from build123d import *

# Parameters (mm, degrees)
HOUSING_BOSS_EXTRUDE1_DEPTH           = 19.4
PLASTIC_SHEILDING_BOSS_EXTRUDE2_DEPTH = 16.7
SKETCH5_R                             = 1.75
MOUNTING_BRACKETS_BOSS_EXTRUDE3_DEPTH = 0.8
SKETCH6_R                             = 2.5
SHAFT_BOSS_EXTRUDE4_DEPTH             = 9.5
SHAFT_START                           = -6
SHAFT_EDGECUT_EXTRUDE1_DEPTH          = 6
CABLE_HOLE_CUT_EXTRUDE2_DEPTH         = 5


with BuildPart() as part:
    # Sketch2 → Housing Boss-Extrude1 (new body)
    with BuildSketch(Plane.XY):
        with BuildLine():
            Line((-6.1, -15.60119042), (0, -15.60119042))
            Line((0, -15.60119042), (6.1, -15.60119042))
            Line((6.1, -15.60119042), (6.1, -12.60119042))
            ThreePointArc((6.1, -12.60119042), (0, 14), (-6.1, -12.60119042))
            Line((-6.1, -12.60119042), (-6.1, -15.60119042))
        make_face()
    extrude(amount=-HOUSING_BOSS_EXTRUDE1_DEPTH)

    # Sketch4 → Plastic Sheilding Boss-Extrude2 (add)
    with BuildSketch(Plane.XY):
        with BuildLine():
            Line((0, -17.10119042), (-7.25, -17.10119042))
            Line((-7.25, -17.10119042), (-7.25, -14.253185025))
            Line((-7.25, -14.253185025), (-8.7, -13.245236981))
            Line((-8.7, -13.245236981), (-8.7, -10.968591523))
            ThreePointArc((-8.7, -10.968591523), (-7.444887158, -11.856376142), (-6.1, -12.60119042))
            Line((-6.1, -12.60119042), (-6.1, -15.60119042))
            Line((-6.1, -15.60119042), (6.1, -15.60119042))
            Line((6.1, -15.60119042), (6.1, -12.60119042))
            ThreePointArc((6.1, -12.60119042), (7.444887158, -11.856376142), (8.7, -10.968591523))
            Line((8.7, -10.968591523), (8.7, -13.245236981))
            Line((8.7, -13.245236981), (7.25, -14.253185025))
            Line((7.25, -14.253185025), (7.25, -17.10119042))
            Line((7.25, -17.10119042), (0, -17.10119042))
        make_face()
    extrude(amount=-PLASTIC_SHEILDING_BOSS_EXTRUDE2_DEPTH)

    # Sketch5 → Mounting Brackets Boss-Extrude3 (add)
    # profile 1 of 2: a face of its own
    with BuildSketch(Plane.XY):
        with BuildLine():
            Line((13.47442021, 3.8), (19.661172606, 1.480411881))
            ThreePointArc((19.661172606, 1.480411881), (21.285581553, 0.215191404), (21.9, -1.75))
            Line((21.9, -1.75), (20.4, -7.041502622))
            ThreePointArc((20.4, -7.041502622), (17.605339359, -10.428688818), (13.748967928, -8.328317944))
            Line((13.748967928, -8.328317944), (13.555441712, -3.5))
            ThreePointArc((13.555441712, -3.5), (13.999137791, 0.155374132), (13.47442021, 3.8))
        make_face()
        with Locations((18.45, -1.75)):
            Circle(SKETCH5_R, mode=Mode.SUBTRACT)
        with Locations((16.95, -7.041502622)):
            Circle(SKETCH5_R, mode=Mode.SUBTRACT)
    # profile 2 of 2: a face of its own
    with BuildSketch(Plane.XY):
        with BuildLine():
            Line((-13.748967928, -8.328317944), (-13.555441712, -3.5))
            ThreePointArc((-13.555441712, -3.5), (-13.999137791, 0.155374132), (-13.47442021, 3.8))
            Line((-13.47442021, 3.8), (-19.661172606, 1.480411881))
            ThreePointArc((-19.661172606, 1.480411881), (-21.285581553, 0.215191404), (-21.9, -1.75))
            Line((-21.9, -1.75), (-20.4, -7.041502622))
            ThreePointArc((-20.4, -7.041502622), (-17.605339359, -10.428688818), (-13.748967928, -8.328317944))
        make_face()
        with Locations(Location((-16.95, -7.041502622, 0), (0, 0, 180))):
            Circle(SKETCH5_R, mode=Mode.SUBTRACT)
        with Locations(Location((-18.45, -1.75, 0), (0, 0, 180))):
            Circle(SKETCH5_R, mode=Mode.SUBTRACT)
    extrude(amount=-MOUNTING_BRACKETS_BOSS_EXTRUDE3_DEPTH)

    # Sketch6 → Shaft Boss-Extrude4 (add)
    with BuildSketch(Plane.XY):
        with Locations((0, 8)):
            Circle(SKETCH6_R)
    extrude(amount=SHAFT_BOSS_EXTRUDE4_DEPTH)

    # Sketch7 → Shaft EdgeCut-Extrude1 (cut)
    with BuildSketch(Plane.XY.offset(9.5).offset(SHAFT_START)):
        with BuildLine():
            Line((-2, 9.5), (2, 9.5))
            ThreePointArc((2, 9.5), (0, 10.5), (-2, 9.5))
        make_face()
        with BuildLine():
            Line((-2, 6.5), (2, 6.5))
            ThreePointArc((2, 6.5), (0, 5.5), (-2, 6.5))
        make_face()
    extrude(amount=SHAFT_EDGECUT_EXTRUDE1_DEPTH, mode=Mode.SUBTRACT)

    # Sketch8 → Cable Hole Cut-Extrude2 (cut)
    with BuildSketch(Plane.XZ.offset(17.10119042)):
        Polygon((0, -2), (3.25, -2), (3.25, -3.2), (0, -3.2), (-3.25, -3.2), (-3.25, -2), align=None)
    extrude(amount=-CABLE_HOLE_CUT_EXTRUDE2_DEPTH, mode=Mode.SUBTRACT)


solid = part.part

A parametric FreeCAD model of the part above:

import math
import FreeCAD as App
import Part
import Sketcher
Q = App.Units.Quantity


def add_polygon(sketch, points):
    """Adds a closed chain of lines whose ends are joined by coincident constraints."""
    first, n = sketch.GeometryCount, len(points)
    for a, b in zip(points, points[1:] + points[:1]):
        sketch.addGeometry(Part.LineSegment(App.Vector(*a, 0), App.Vector(*b, 0)), False)
    for i in range(n):
        sketch.addConstraint(Sketcher.Constraint("Coincident", first + i, 2, first + (i + 1) % n, 1))

doc = App.newDocument("Part")
body = doc.addObject("PartDesign::Body", "Body")

sketch1 = body.newObject("Sketcher::SketchObject", "Sketch")
sketch1.AttachmentSupport = (doc.getObject("XY_Plane"), [""])
sketch1.MapMode = "FlatFace"
sketch1.addGeometry(Part.LineSegment(App.Vector(-6.1, -15.6, 0), App.Vector(6.1, -15.6, 0)), False)
sketch1.addGeometry(Part.LineSegment(App.Vector(6.1, -15.6, 0), App.Vector(6.1, -12.6, 0)), False)
sketch1.addGeometry(Part.ArcOfCircle(Part.Circle(App.Vector(0, 0, 0), App.Vector(0, 0, 1), 14), math.radians(-64), math.radians(244)), False)
sketch1.addGeometry(Part.LineSegment(App.Vector(-6.1, -12.6, 0), App.Vector(-6.1, -15.6, 0)), False)
sketch1.addConstraint(Sketcher.Constraint("Coincident", 0, 2, 1, 1))
sketch1.addConstraint(Sketcher.Constraint("Coincident", 1, 2, 2, 1))
sketch1.addConstraint(Sketcher.Constraint("Coincident", 2, 2, 3, 1))
sketch1.addConstraint(Sketcher.Constraint("Coincident", 3, 2, 0, 1))
sketch1.addConstraint(Sketcher.Constraint("Horizontal", 0))
sketch1.addConstraint(Sketcher.Constraint("Vertical", 1))
sketch1.addConstraint(Sketcher.Constraint("Vertical", 3))
sketch1.addConstraint(Sketcher.Constraint("Coincident", 2, 3, -1, 1))
sketch1.addConstraint(Sketcher.Constraint("Horizontal", 1, 2, 2, 2))
sketch1.addConstraint(Sketcher.Constraint("Radius", 2, Q("14 mm")))
sketch1.addConstraint(Sketcher.Constraint("DistanceY", 1, 1, 1, 2, Q("3 mm")))
sketch1.addConstraint(Sketcher.Constraint("DistanceX", 0, 1, 0, 2, Q("12.2 mm")))
pad1 = body.newObject("PartDesign::Pad", "Pad")
pad1.Profile = sketch1
pad1.Length = 19.4
pad1.Reversed = True

sketch2 = body.newObject("Sketcher::SketchObject", "Sketch001")
sketch2.AttachmentSupport = (doc.getObject("XY_Plane"), [""])
sketch2.MapMode = "FlatFace"
sketch2.addGeometry(Part.LineSegment(App.Vector(-7.2, -14.3, 0), App.Vector(-7.2, -17.1, 0)), False)
sketch2.addGeometry(Part.LineSegment(App.Vector(-7.2, -17.1, 0), App.Vector(7.2, -17.1, 0)), False)
sketch2.addGeometry(Part.LineSegment(App.Vector(7.2, -17.1, 0), App.Vector(7.2, -14.3, 0)), False)
sketch2.addGeometry(Part.LineSegment(App.Vector(7.2, -14.3, 0), App.Vector(8.7, -13.2, 0)), False)
sketch2.addGeometry(Part.LineSegment(App.Vector(8.7, -13.2, 0), App.Vector(8.7, -11, 0)), False)
sketch2.addGeometry(Part.ArcOfCircle(Part.Circle(App.Vector(0, 0, 0), App.Vector(0, 0, 1), 14), math.radians(-64.17), math.radians(-51.58)), False)
sketch2.addGeometry(Part.LineSegment(App.Vector(6.1, -12.6, 0), App.Vector(6.1, -15.6, 0)), False)
sketch2.addGeometry(Part.LineSegment(App.Vector(6.1, -15.6, 0), App.Vector(-6.1, -15.6, 0)), False)
sketch2.addGeometry(Part.LineSegment(App.Vector(-6.1, -15.6, 0), App.Vector(-6.1, -12.6, 0)), False)
sketch2.addGeometry(Part.ArcOfCircle(Part.Circle(App.Vector(0, 0, 0), App.Vector(0, 0, 1), 14), math.radians(-128.42), math.radians(-115.83)), False)
sketch2.addGeometry(Part.LineSegment(App.Vector(-8.7, -11, 0), App.Vector(-8.7, -13.2, 0)), False)
sketch2.addGeometry(Part.LineSegment(App.Vector(-8.7, -13.2, 0), App.Vector(-7.2, -14.3, 0)), False)
sketch2.addConstraint(Sketcher.Constraint("Coincident", 0, 2, 1, 1))
sketch2.addConstraint(Sketcher.Constraint("Coincident", 1, 2, 2, 1))
sketch2.addConstraint(Sketcher.Constraint("Coincident", 2, 2, 3, 1))
sketch2.addConstraint(Sketcher.Constraint("Coincident", 3, 2, 4, 1))
sketch2.addConstraint(Sketcher.Constraint("Coincident", 4, 2, 5, 2))
sketch2.addConstraint(Sketcher.Constraint("Coincident", 5, 1, 6, 1))
sketch2.addConstraint(Sketcher.Constraint("Coincident", 6, 2, 7, 1))
sketch2.addConstraint(Sketcher.Constraint("Coincident", 7, 2, 8, 1))
sketch2.addConstraint(Sketcher.Constraint("Coincident", 8, 2, 9, 2))
sketch2.addConstraint(Sketcher.Constraint("Coincident", 9, 1, 10, 1))
sketch2.addConstraint(Sketcher.Constraint("Coincident", 10, 2, 11, 1))
sketch2.addConstraint(Sketcher.Constraint("Coincident", 11, 2, 0, 1))
sketch2.addConstraint(Sketcher.Constraint("Vertical", 0))
sketch2.addConstraint(Sketcher.Constraint("Horizontal", 1))
sketch2.addConstraint(Sketcher.Constraint("Vertical", 2))
sketch2.addConstraint(Sketcher.Constraint("Vertical", 4))
sketch2.addConstraint(Sketcher.Constraint("Vertical", 6))
sketch2.addConstraint(Sketcher.Constraint("Horizontal", 7))
sketch2.addConstraint(Sketcher.Constraint("Vertical", 8))
sketch2.addConstraint(Sketcher.Constraint("Vertical", 10))
sketch2.addConstraint(Sketcher.Constraint("Coincident", 5, 3, -1, 1))
sketch2.addConstraint(Sketcher.Constraint("Coincident", 9, 3, -1, 1))
sketch2.addConstraint(Sketcher.Constraint("Equal", 5, 9))
sketch2.addConstraint(Sketcher.Constraint("Symmetric", 3, 2, 10, 2, -2))
sketch2.addConstraint(Sketcher.Constraint("Symmetric", 2, 2, 11, 2, -2))
sketch2.addConstraint(Sketcher.Constraint("Horizontal", 5, 1, 8, 2))
sketch2.addConstraint(Sketcher.Constraint("Radius", 5, Q("14 mm")))
sketch2.addConstraint(Sketcher.Constraint("DistanceY", 6, 2, 6, 1, Q("3 mm")))
sketch2.addConstraint(Sketcher.Constraint("DistanceX", 1, 1, 1, 2, Q("14.5 mm")))
sketch2.addConstraint(Sketcher.Constraint("DistanceX", 7, 2, 7, 1, Q("12.2 mm")))
sketch2.addConstraint(Sketcher.Constraint("DistanceX", -1, 1, 3, 2, Q("8.7 mm")))
sketch2.addConstraint(Sketcher.Constraint("DistanceY", 1, 2, 5, 1, Q("4.5 mm")))
sketch2.addConstraint(Sketcher.Constraint("DistanceY", 0, 2, 0, 1, Q("2.848005 mm")))
sketch2.addConstraint(Sketcher.Constraint("DistanceY", 4, 1, 4, 2, Q("2.276645 mm")))
pad2 = body.newObject("PartDesign::Pad", "Pad001")
pad2.Profile = sketch2
pad2.Length = 16.7
pad2.Reversed = True

sketch3 = body.newObject("Sketcher::SketchObject", "Sketch002")
sketch3.AttachmentSupport = (doc.getObject("XY_Plane"), [""])
sketch3.MapMode = "FlatFace"
sketch3.addGeometry(Part.LineSegment(App.Vector(19.7, 1.5, 0), App.Vector(13.5, 3.8, 0)), False)
sketch3.addGeometry(Part.ArcOfCircle(Part.Circle(App.Vector(0, 0, 0), App.Vector(0, 0, 1), 14), math.radians(-14), math.radians(16)), False)
sketch3.addGeometry(Part.LineSegment(App.Vector(13.6, -3.5, 0), App.Vector(13.7, -8.3, 0)), False)
sketch3.addGeometry(Part.ArcOfCircle(Part.Circle(App.Vector(16.9, -7, 0), App.Vector(0, 0, 1), 3.5), math.radians(-158), math.radians(0)), False)
sketch3.addGeometry(Part.LineSegment(App.Vector(20.4, -7, 0), App.Vector(21.9, -1.8, 0)), False)
sketch3.addGeometry(Part.ArcOfCircle(Part.Circle(App.Vector(18.4, -1.8, 0), App.Vector(0, 0, 1), 3.5), math.radians(0), math.radians(69)), False)
sketch3.addGeometry(Part.Circle(App.Vector(16.9, -7, 0), App.Vector(0, 0, 1), 1.8), False)
sketch3.addGeometry(Part.Circle(App.Vector(18.4, -1.8, 0), App.Vector(0, 0, 1), 1.8), False)
sketch3.addGeometry(Part.LineSegment(App.Vector(-13.7, -8.3, 0), App.Vector(-13.6, -3.5, 0)), False)
sketch3.addGeometry(Part.ArcOfCircle(Part.Circle(App.Vector(0, 0, 0), App.Vector(0, 0, 1), 14), math.radians(164), math.radians(194)), False)
sketch3.addGeometry(Part.LineSegment(App.Vector(-13.5, 3.8, 0), App.Vector(-19.7, 1.5, 0)), False)
sketch3.addGeometry(Part.ArcOfCircle(Part.Circle(App.Vector(-18.4, -1.8, 0), App.Vector(0, 0, 1), 3.5), math.radians(111), math.radians(180)), False)
sketch3.addGeometry(Part.LineSegment(App.Vector(-21.9, -1.8, 0), App.Vector(-20.4, -7, 0)), False)
sketch3.addGeometry(Part.ArcOfCircle(Part.Circle(App.Vector(-16.9, -7, 0), App.Vector(0, 0, 1), 3.5), math.radians(180), math.radians(338)), False)
sketch3.addGeometry(Part.Circle(App.Vector(-16.9, -7, 0), App.Vector(0, 0, 1), 1.8), False)
sketch3.addGeometry(Part.Circle(App.Vector(-18.4, -1.8, 0), App.Vector(0, 0, 1), 1.8), False)
sketch3.addConstraint(Sketcher.Constraint("Coincident", 0, 2, 1, 2))
sketch3.addConstraint(Sketcher.Constraint("Coincident", 1, 1, 2, 1))
sketch3.addConstraint(Sketcher.Constraint("Coincident", 2, 2, 3, 1))
sketch3.addConstraint(Sketcher.Constraint("Coincident", 3, 2, 4, 1))
sketch3.addConstraint(Sketcher.Constraint("Coincident", 4, 2, 5, 1))
sketch3.addConstraint(Sketcher.Constraint("Tangent", 5, 2, 0, 1))
sketch3.addConstraint(Sketcher.Constraint("Coincident", 8, 2, 9, 2))
sketch3.addConstraint(Sketcher.Constraint("Coincident", 9, 1, 10, 1))
sketch3.addConstraint(Sketcher.Constraint("Tangent", 10, 2, 11, 1))
sketch3.addConstraint(Sketcher.Constraint("Coincident", 11, 2, 12, 1))
sketch3.addConstraint(Sketcher.Constraint("Coincident", 12, 2, 13, 1))
sketch3.addConstraint(Sketcher.Constraint("Coincident", 13, 2, 8, 1))
sketch3.addConstraint(Sketcher.Constraint("Coincident", 1, 3, -1, 1))
sketch3.addConstraint(Sketcher.Constraint("Coincident", 9, 3, -1, 1))
sketch3.addConstraint(Sketcher.Constraint("Coincident", 6, 3, 3, 3))
sketch3.addConstraint(Sketcher.Constraint("Coincident", 7, 3, 5, 3))
sketch3.addConstraint(Sketcher.Constraint("Coincident", 14, 3, 13, 3))
sketch3.addConstraint(Sketcher.Constraint("Coincident", 15, 3, 11, 3))
sketch3.addConstraint(Sketcher.Constraint("Equal", 3, 5))
sketch3.addConstraint(Sketcher.Constraint("Equal", 6, 7))
sketch3.addConstraint(Sketcher.Constraint("Equal", 1, 9))
sketch3.addConstraint(Sketcher.Constraint("Equal", 5, 11))
sketch3.addConstraint(Sketcher.Constraint("Equal", 11, 13))
sketch3.addConstraint(Sketcher.Constraint("Equal", 7, 14))
sketch3.addConstraint(Sketcher.Constraint("Equal", 14, 15))
sketch3.addConstraint(Sketcher.Constraint("Symmetric", 5, 3, 11, 3, -2))
sketch3.addConstraint(Sketcher.Constraint("Symmetric", 3, 3, 13, 3, -2))
sketch3.addConstraint(Sketcher.Constraint("Horizontal", 14, 3, 3, 2))
sketch3.addConstraint(Sketcher.Constraint("Horizontal", 15, 3, 4, 2))
sketch3.addConstraint(Sketcher.Constraint("Horizontal", 1, 1, 8, 2))
sketch3.addConstraint(Sketcher.Constraint("Horizontal", 0, 2, 9, 1))
sketch3.addConstraint(Sketcher.Constraint("Horizontal", 4, 2, 11, 2))
sketch3.addConstraint(Sketcher.Constraint("Horizontal", 3, 2, 12, 2))
sketch3.addConstraint(Sketcher.Constraint("Horizontal", 2, 2, 13, 2))
sketch3.addConstraint(Sketcher.Constraint("Radius", 1, Q("14 mm")))
sketch3.addConstraint(Sketcher.Constraint("Diameter", 6, Q("3.5 mm")))
sketch3.addConstraint(Sketcher.Constraint("Radius", 3, Q("3.45 mm")))
sketch3.addConstraint(Sketcher.Constraint("Distance", 4, Q("5.5 mm")))
sketch3.addConstraint(Sketcher.Constraint("DistanceY", -1, 1, 0, 2, Q("3.8 mm")))
sketch3.addConstraint(Sketcher.Constraint("DistanceY", 1, 1, -1, 1, Q("3.5 mm")))
sketch3.addConstraint(Sketcher.Constraint("DistanceX", -1, 1, 3, 2, Q("20.4 mm")))
sketch3.addConstraint(Sketcher.Constraint("DistanceX", -1, 1, 4, 2, Q("21.9 mm")))
sketch3.addConstraint(Sketcher.Constraint("DistanceY", 5, 3, -1, 1, Q("1.75 mm")))
sketch3.addConstraint(Sketcher.Constraint("Distance", 2, Q("4.832195 mm")))
pad3 = body.newObject("PartDesign::Pad", "Pad002")
pad3.Profile = sketch3
pad3.Length = 0.8
pad3.Reversed = True

sketch4 = body.newObject("Sketcher::SketchObject", "Sketch003")
sketch4.AttachmentSupport = (doc.getObject("XY_Plane"), [""])
sketch4.MapMode = "FlatFace"
sketch4.addGeometry(Part.Circle(App.Vector(0, 8, 0), App.Vector(0, 0, 1), 2.5), False)
sketch4.addConstraint(Sketcher.Constraint("PointOnObject", 0, 3, -2))
sketch4.addConstraint(Sketcher.Constraint("Diameter", 0, Q("5 mm")))
sketch4.addConstraint(Sketcher.Constraint("DistanceY", -1, 1, 0, 3, Q("8 mm")))
pad4 = body.newObject("PartDesign::Pad", "Pad003")
pad4.Profile = sketch4
pad4.Length = 9.5

sketch5 = body.newObject("Sketcher::SketchObject", "Sketch004")
sketch5.AttachmentSupport = (doc.getObject("XY_Plane"), [""])
sketch5.MapMode = "FlatFace"
sketch5.AttachmentOffset = App.Placement(App.Vector(0, 0, 3.5), App.Rotation())
sketch5.addGeometry(Part.LineSegment(App.Vector(-2, 9.5, 0), App.Vector(2, 9.5, 0)), False)
sketch5.addGeometry(Part.ArcOfCircle(Part.Circle(App.Vector(0, 8, 0), App.Vector(0, 0, 1), 2.5), math.radians(37), math.radians(143)), False)
sketch5.addGeometry(Part.LineSegment(App.Vector(2, 6.5, 0), App.Vector(-2, 6.5, 0)), False)
sketch5.addGeometry(Part.ArcOfCircle(Part.Circle(App.Vector(0, 8, 0), App.Vector(0, 0, 1), 2.5), math.radians(-143), math.radians(-37)), False)
sketch5.addConstraint(Sketcher.Constraint("Coincident", 0, 1, 1, 2))
sketch5.addConstraint(Sketcher.Constraint("Coincident", 1, 1, 0, 2))
sketch5.addConstraint(Sketcher.Constraint("Coincident", 2, 1, 3, 2))
sketch5.addConstraint(Sketcher.Constraint("Coincident", 3, 1, 2, 2))
sketch5.addConstraint(Sketcher.Constraint("Horizontal", 0))
sketch5.addConstraint(Sketcher.Constraint("Horizontal", 2))
sketch5.addConstraint(Sketcher.Constraint("Coincident", 3, 3, 1, 3))
sketch5.addConstraint(Sketcher.Constraint("Equal", 1, 3))
sketch5.addConstraint(Sketcher.Constraint("PointOnObject", 1, 3, -2))
sketch5.addConstraint(Sketcher.Constraint("Vertical", 1, 1, 2, 1))
sketch5.addConstraint(Sketcher.Constraint("Radius", 1, Q("2.5 mm")))
sketch5.addConstraint(Sketcher.Constraint("DistanceX", 0, 1, 0, 2, Q("4 mm")))
sketch5.addConstraint(Sketcher.Constraint("DistanceY", -1, 1, 1, 3, Q("8 mm")))
pocket1 = body.newObject("PartDesign::Pocket", "Pocket")
pocket1.Profile = sketch5
pocket1.Length = 6
pocket1.Reversed = True

sketch6 = body.newObject("Sketcher::SketchObject", "Sketch005")
sketch6.AttachmentSupport = (doc.getObject("XZ_Plane"), [""])
sketch6.MapMode = "FlatFace"
sketch6.AttachmentOffset = App.Placement(App.Vector(0, 0, 17.10119), App.Rotation())
add_polygon(sketch6, [(3.2, -2), (-3.2, -2), (-3.2, -3.2), (3.2, -3.2)])
sketch6.addConstraint(Sketcher.Constraint("Horizontal", 0))
sketch6.addConstraint(Sketcher.Constraint("Vertical", 1))
sketch6.addConstraint(Sketcher.Constraint("Horizontal", 2))
sketch6.addConstraint(Sketcher.Constraint("Vertical", 3))
sketch6.addConstraint(Sketcher.Constraint("DistanceX", 0, 2, 0, 1, Q("6.5 mm")))
sketch6.addConstraint(Sketcher.Constraint("DistanceY", 1, 2, 1, 1, Q("1.2 mm")))
sketch6.addConstraint(Sketcher.Constraint("DistanceY", 0, 2, -1, 1, Q("2 mm")))
sketch6.addConstraint(Sketcher.Constraint("DistanceX", 0, 2, -1, 1, Q("3.25 mm")))
pocket2 = body.newObject("PartDesign::Pocket", "Pocket001")
pocket2.Profile = sketch6
pocket2.Length = 5

doc.recompute()
